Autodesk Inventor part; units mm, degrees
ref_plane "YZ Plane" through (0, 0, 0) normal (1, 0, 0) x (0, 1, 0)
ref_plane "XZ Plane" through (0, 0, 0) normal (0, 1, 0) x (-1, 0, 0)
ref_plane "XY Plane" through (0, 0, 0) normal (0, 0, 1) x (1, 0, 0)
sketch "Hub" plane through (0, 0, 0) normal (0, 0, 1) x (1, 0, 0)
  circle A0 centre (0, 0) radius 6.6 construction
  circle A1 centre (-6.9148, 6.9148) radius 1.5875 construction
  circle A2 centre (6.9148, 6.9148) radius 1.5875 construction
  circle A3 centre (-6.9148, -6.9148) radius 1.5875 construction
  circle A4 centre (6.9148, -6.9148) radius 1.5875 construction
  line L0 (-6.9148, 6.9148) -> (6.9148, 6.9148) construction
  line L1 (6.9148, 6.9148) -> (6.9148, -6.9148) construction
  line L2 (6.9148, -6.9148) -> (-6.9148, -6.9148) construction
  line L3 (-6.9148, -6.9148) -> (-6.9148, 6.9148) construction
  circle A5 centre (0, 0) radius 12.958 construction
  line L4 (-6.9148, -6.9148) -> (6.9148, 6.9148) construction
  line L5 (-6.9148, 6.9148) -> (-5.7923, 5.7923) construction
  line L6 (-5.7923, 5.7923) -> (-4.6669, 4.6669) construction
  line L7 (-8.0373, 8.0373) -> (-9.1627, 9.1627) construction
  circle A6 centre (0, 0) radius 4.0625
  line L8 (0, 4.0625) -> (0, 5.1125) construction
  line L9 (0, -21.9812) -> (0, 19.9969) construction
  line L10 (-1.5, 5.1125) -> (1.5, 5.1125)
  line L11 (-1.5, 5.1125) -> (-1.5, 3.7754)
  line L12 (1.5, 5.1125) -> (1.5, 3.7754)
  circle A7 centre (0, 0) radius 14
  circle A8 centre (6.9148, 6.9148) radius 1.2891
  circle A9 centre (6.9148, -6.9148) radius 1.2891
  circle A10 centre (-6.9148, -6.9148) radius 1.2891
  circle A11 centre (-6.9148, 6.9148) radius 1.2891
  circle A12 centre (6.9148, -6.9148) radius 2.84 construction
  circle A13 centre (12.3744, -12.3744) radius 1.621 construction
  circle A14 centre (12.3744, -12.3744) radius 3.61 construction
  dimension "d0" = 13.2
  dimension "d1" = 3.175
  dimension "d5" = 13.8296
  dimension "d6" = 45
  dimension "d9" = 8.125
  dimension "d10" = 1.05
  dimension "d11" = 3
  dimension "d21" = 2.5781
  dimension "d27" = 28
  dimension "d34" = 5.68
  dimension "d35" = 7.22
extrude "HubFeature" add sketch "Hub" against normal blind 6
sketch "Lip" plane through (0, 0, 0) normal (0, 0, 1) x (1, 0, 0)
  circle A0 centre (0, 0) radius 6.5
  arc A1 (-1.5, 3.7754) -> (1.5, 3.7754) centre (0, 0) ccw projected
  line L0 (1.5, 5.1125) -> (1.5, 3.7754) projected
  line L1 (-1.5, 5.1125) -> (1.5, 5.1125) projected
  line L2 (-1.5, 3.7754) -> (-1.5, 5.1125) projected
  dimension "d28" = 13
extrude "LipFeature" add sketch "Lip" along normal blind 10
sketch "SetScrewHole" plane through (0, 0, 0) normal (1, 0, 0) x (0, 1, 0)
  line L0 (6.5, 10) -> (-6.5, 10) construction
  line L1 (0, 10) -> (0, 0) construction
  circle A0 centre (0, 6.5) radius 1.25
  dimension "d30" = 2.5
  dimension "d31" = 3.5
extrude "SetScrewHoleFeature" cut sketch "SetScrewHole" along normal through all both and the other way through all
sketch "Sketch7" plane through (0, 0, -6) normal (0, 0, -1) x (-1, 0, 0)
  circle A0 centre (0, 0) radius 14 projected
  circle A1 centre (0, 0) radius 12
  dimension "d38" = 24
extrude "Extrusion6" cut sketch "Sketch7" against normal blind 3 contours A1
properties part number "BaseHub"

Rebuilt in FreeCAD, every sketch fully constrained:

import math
import FreeCAD as App
import Part
import Sketcher
from FreeCAD import Vector
Q = App.Units.Quantity

doc = App.newDocument("Part")
body = doc.addObject("PartDesign::Body", "Body")

# Sketch on XY plane
sketch1 = doc.addObject("Sketcher::SketchObject", "Sketch")
body.addObject(sketch1)
sketch1.AttachmentSupport = (doc.XY_Plane, [""])
sketch1.MapMode = "FlatFace"
sketch1.addGeometry([
    Part.Circle(Vector(0, 0, 0), Vector(0, 0, 1), 14),  # 0
    Part.Circle(Vector(-6.9148, -6.9148, 0), Vector(0, 0, 1), 1.2891),  # 1
    Part.Circle(Vector(6.9148, -6.9148, 0), Vector(0, 0, 1), 1.2891),  # 2
    Part.Circle(Vector(-6.9148, 6.9148, 0), Vector(0, 0, 1), 1.2891),  # 3
    Part.ArcOfCircle(Part.Circle(Vector(0, 0, 0), Vector(0, 0, 1), 4.0625), math.radians(111.668365), math.radians(428.331635)),  # 4
    Part.LineSegment(Vector(-1.5, 3.7754, 0), Vector(-1.5, 5.1125, 0)),  # 5
    Part.LineSegment(Vector(-1.5, 5.1125, 0), Vector(1.5, 5.1125, 0)),  # 6
    Part.LineSegment(Vector(1.5, 5.1125, 0), Vector(1.5, 3.7754, 0)),  # 7
    Part.Circle(Vector(6.9148, 6.9148, 0), Vector(0, 0, 1), 1.2891),  # 8
], False)
sketch1.addConstraint([
    Sketcher.Constraint("Coincident", 4, 1, 5, 1),
    Sketcher.Constraint("Coincident", 5, 2, 6, 1),
    Sketcher.Constraint("Coincident", 6, 2, 7, 1),
    Sketcher.Constraint("Coincident", 7, 2, 4, 2),
    Sketcher.Constraint("Vertical", 5),
    Sketcher.Constraint("Horizontal", 6),
    Sketcher.Constraint("Vertical", 7),
    Sketcher.Constraint("Coincident", 0, 3, -1, 1),
    Sketcher.Constraint("Coincident", 4, 3, -1, 1),
    Sketcher.Constraint("Equal", 1, 2),
    Sketcher.Constraint("Equal", 2, 3),
    Sketcher.Constraint("Equal", 3, 8),
    Sketcher.Constraint("Symmetric", 2, 3, 3, 3, -1, 1),
    Sketcher.Constraint("Symmetric", 1, 3, 8, 3, -1, 1),
    Sketcher.Constraint("Symmetric", 1, 3, 2, 3, -2),
    Sketcher.Constraint("Horizontal", 4, 1, 7, 2),
    Sketcher.Constraint("Diameter", 0, Q("28 mm")),
    Sketcher.Constraint("DistanceX", 6, 1, 6, 2, Q("3 mm")),
    Sketcher.Constraint("Diameter", 1, Q("2.5782 mm")),
    Sketcher.Constraint("Radius", 4, Q("4.0625 mm")),
    Sketcher.Constraint("DistanceX", 1, 3, 2, 3, Q("13.8296 mm")),
    Sketcher.Constraint("DistanceY", 1, 3, 3, 3, Q("13.8296 mm")),
    Sketcher.Constraint("DistanceY", 5, 1, 5, 2, Q("1.337 mm")),
])
pad1 = doc.addObject("PartDesign::Pad", "Pad")
body.addObject(pad1)
pad1.Profile = sketch1
pad1.Length = 6
pad1.Reversed = True

# Sketch on XY plane
sketch2 = doc.addObject("Sketcher::SketchObject", "Sketch001")
body.addObject(sketch2)
sketch2.AttachmentSupport = (doc.XY_Plane, [""])
sketch2.MapMode = "FlatFace"
sketch2.addGeometry([
    Part.Circle(Vector(0, 0, 0), Vector(0, 0, 1), 6.5),  # 0
    Part.ArcOfCircle(Part.Circle(Vector(0, 0, 0), Vector(0, 0, 1), 4.062468), math.radians(111.668365), math.radians(428.331635)),  # 1
    Part.LineSegment(Vector(-1.5, 3.7754, 0), Vector(-1.5, 5.1125, 0)),  # 2
    Part.LineSegment(Vector(-1.5, 5.1125, 0), Vector(1.5, 5.1125, 0)),  # 3
    Part.LineSegment(Vector(1.5, 5.1125, 0), Vector(1.5, 3.7754, 0)),  # 4
], False)
sketch2.addConstraint([
    Sketcher.Constraint("Coincident", 1, 1, 2, 1),
    Sketcher.Constraint("Coincident", 2, 2, 3, 1),
    Sketcher.Constraint("Coincident", 3, 2, 4, 1),
    Sketcher.Constraint("Coincident", 4, 2, 1, 2),
    Sketcher.Constraint("Vertical", 2),
    Sketcher.Constraint("Horizontal", 3),
    Sketcher.Constraint("Vertical", 4),
    Sketcher.Constraint("Coincident", 0, 3, -1, 1),
    Sketcher.Constraint("Coincident", 1, 3, -1, 1),
    Sketcher.Constraint("Horizontal", 1, 1, 4, 2),
    Sketcher.Constraint("Diameter", 0, Q("13 mm")),
    Sketcher.Constraint("DistanceX", 3, 1, 3, 2, Q("3 mm")),
    Sketcher.Constraint("Radius", 1, Q("4.0625 mm")),
    Sketcher.Constraint("DistanceY", 2, 1, 2, 2, Q("1.337 mm")),
])
pad2 = doc.addObject("PartDesign::Pad", "Pad001")
body.addObject(pad2)
pad2.Profile = sketch2
pad2.Length = 10

# Sketch on YZ plane
sketch3 = doc.addObject("Sketcher::SketchObject", "Sketch002")
body.addObject(sketch3)
sketch3.AttachmentSupport = (doc.YZ_Plane, [""])
sketch3.MapMode = "FlatFace"
sketch3.addGeometry(Part.Circle(Vector(0, 6.5, 0), Vector(0, 0, 1), 1.25), False)
sketch3.addConstraint([
    Sketcher.Constraint("PointOnObject", 0, 3, -2),
    Sketcher.Constraint("Diameter", 0, Q("2.5 mm")),
    Sketcher.Constraint("DistanceY", -1, 1, 0, 3, Q("6.5 mm")),
])
pocket1 = doc.addObject("PartDesign::Pocket", "Pocket")
body.addObject(pocket1)
pocket1.Profile = sketch3
pocket1.Type = "ThroughAll"
pocket1.Midplane = True

# Sketch on XY plane
sketch4 = doc.addObject("Sketcher::SketchObject", "Sketch003")
body.addObject(sketch4)
sketch4.AttachmentSupport = (doc.XY_Plane, [""])
sketch4.MapMode = "FlatFace"
sketch4.AttachmentOffset = App.Placement(Vector(0, 0, -6), App.Rotation())
sketch4.addGeometry(Part.Circle(Vector(0, 0, 0), Vector(0, 0, 1), 12), False)
sketch4.addConstraint([
    Sketcher.Constraint("Coincident", 0, 3, -1, 1),
    Sketcher.Constraint("Diameter", 0, Q("24 mm")),
])
pocket2 = doc.addObject("PartDesign::Pocket", "Pocket001")
body.addObject(pocket2)
pocket2.Profile = sketch4
pocket2.Length = 3
pocket2.Reversed = True

doc.recompute()
